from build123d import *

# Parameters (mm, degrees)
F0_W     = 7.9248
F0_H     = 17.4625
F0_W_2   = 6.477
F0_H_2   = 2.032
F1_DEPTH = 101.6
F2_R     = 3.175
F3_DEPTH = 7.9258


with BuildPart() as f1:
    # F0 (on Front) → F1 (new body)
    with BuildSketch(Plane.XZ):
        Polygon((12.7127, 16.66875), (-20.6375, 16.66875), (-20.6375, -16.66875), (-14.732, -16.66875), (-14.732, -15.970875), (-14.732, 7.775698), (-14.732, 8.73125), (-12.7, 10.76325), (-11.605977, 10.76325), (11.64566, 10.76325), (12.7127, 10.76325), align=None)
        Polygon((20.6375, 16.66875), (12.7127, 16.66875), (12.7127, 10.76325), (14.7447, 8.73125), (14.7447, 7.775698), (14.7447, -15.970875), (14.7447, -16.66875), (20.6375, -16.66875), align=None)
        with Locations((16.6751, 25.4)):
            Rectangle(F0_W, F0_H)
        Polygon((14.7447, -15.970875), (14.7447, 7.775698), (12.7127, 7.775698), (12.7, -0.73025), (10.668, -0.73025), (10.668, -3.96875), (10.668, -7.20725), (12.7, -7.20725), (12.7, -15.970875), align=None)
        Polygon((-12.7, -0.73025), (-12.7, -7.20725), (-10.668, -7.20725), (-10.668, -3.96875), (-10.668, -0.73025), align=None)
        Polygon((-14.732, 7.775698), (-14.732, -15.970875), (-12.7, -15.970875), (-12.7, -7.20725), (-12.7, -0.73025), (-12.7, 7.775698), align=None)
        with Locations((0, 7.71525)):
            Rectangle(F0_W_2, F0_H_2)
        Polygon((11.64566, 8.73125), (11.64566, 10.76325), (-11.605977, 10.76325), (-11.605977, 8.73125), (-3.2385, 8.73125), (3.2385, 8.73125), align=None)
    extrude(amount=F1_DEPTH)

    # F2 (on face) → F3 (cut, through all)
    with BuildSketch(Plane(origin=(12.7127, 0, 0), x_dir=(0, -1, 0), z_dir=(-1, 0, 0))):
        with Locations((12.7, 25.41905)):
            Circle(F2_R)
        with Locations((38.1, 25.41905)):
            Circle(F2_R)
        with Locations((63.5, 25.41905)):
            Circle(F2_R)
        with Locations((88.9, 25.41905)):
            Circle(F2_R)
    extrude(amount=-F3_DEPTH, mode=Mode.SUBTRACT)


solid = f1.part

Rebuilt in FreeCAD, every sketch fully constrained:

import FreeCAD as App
import Part
import Sketcher
Q = App.Units.Quantity


def add_polygon(sketch, points):
    """Adds a closed chain of lines whose ends are joined by coincident constraints."""
    first, n = sketch.GeometryCount, len(points)
    for a, b in zip(points, points[1:] + points[:1]):
        sketch.addGeometry(Part.LineSegment(App.Vector(*a, 0), App.Vector(*b, 0)), False)
    for i in range(n):
        sketch.addConstraint(Sketcher.Constraint("Coincident", first + i, 2, first + (i + 1) % n, 1))

doc = App.newDocument("Part")
body = doc.addObject("PartDesign::Body", "Body")

# Sketch on XZ plane
sketch1 = doc.addObject("Sketcher::SketchObject", "Sketch")
body.addObject(sketch1)
sketch1.AttachmentSupport = (doc.XZ_Plane, [""])
sketch1.MapMode = "FlatFace"
add_polygon(sketch1, [(12.7127, 16.66875), (-20.6375, 16.66875), (-20.6375, -16.66875), (-14.732, -16.66875), (-14.732, -15.970875), (-12.7, -15.970875), (-12.7, -7.20725), (-10.668, -7.20725), (-10.668, -0.73025), (-12.7, -0.73025), (-12.7, 7.775698), (-14.732, 7.775698), (-14.732, 8.73125), (-12.7, 10.76325), (-11.605977, 10.76325), (-11.605977, 8.73125), (-3.2385, 8.73125), (-3.2385, 6.69925), (3.2385, 6.69925), (3.2385, 8.73125), (11.64566, 8.73125), (11.64566, 10.76325), (12.7127, 10.76325), (14.7447, 8.73125), (14.7447, 7.775698), (12.7127, 7.775698), (12.7, -0.73025), (10.668, -0.73025), (10.668, -7.20725), (12.7, -7.20725), (12.7, -15.970875), (14.7447, -15.970875), (14.7447, -16.66875), (20.6375, -16.66875), (20.6375, 34.13125), (12.7127, 34.13125)])  # lines 0-35
sketch1.addConstraint([
    Sketcher.Constraint("Horizontal", 0),
    Sketcher.Constraint("Vertical", 1),
    Sketcher.Constraint("Horizontal", 2),
    Sketcher.Constraint("Vertical", 3),
    Sketcher.Constraint("Horizontal", 4),
    Sketcher.Constraint("Vertical", 5),
    Sketcher.Constraint("Horizontal", 6),
    Sketcher.Constraint("Vertical", 7),
    Sketcher.Constraint("Horizontal", 8),
    Sketcher.Constraint("Vertical", 9),
    Sketcher.Constraint("Horizontal", 10),
    Sketcher.Constraint("Vertical", 11),
    Sketcher.Constraint("Horizontal", 13),
    Sketcher.Constraint("Vertical", 14),
    Sketcher.Constraint("Horizontal", 15),
    Sketcher.Constraint("Vertical", 16),
    Sketcher.Constraint("Horizontal", 17),
    Sketcher.Constraint("Vertical", 18),
    Sketcher.Constraint("Horizontal", 19),
    Sketcher.Constraint("Vertical", 20),
    Sketcher.Constraint("Horizontal", 21),
    Sketcher.Constraint("Vertical", 23),
    Sketcher.Constraint("Horizontal", 24),
    Sketcher.Constraint("Horizontal", 26),
    Sketcher.Constraint("Vertical", 27),
    Sketcher.Constraint("Horizontal", 28),
    Sketcher.Constraint("Vertical", 29),
    Sketcher.Constraint("Horizontal", 30),
    Sketcher.Constraint("Vertical", 31),
    Sketcher.Constraint("Horizontal", 32),
    Sketcher.Constraint("Vertical", 33),
    Sketcher.Constraint("Horizontal", 34),
    Sketcher.Constraint("Vertical", 35),
    Sketcher.Constraint("Symmetric", 0, 2, 32, 2, -1, 1),
    Sketcher.Constraint("Symmetric", 15, 2, 18, 2, -2),
    Sketcher.Constraint("Symmetric", 8, 2, 25, 2, -2),
    Sketcher.Constraint("Symmetric", 6, 2, 27, 2, -2),
    Sketcher.Constraint("Symmetric", 4, 2, 29, 2, -2),
    Sketcher.Constraint("Perpendicular", 12, 22),
    Sketcher.Constraint("Horizontal", 11, 2, 14, 2),
    Sketcher.Constraint("Horizontal", 13, 2, 20, 2),
    Sketcher.Constraint("Horizontal", 19, 2, 22, 2),
    Sketcher.Constraint("Horizontal", 10, 2, 23, 2),
    Sketcher.Constraint("Horizontal", 2, 2, 31, 2),
    Sketcher.Constraint("Vertical", 5, 2, 8, 2),
    Sketcher.Constraint("Vertical", 3, 2, 10, 2),
    Sketcher.Constraint("Vertical", 9, 2, 12, 2),
    Sketcher.Constraint("Vertical", 21, 2, 24, 2),
    Sketcher.Constraint("Vertical", 23, 2, 30, 2),
    Sketcher.Constraint("Vertical", 24, 2, 34, 2),
    Sketcher.Constraint("Equal", 4, 6),
    Sketcher.Constraint("Equal", 10, 24),
    Sketcher.Constraint("Equal", 17, 7),
    Sketcher.Constraint("Equal", 14, 16),
    Sketcher.Constraint("DistanceY", 33, 1, 33, 2, Q("2 in")),
    Sketcher.Constraint("DistanceY", 22, 2, 33, 2, Q("1 in")),
    Sketcher.Constraint("DistanceX", 4, 1, 4, 2, Q("0.08 in")),
    Sketcher.Constraint("DistanceX", 4, 2, -1, 1, Q("0.5 in")),
    Sketcher.Constraint("DistanceX", 0, 2, 0, 1, Q("1.313 in")),
    Sketcher.Constraint("DistanceX", 17, 1, 17, 2, Q("0.255 in")),
    Sketcher.Constraint("DistanceX", 32, 1, 32, 2, Q("0.232 in")),
    Sketcher.Constraint("DistanceY", 1, 2, 1, 1, Q("1.3125 in")),
    Sketcher.Constraint("DistanceY", 5, 2, 0, 2, Q("0.94 in")),
    Sketcher.Constraint("DistanceX", 19, 1, 19, 2, 8.40716),
    Sketcher.Constraint("DistanceY", 11, 1, 11, 2, 0.955552),
    Sketcher.Constraint("DistanceX", 13, 1, 13, 2, 1.094023),
    Sketcher.Constraint("DistanceY", 3, 1, 3, 2, 0.697875),
])
pad1 = doc.addObject("PartDesign::Pad", "Pad")
body.addObject(pad1)
pad1.Profile = sketch1
pad1.Length = Q("4 in")

# Sketch on YZ plane
sketch2 = doc.addObject("Sketcher::SketchObject", "Sketch001")
body.addObject(sketch2)
sketch2.AttachmentSupport = (doc.YZ_Plane, [""])
sketch2.MapMode = "FlatFace"
sketch2.AttachmentOffset = App.Placement(App.Vector(0, 0, 0.5005 * 25.4), App.Rotation())
sketch2.addGeometry([
    Part.Circle(App.Vector(-12.7, 25.41905, 0), App.Vector(0, 0, 1), 3.175),
    Part.Circle(App.Vector(-38.1, 25.41905, 0), App.Vector(0, 0, 1), 3.175),
    Part.Circle(App.Vector(-63.5, 25.41905, 0), App.Vector(0, 0, 1), 3.175),
    Part.Circle(App.Vector(-88.9, 25.41905, 0), App.Vector(0, 0, 1), 3.175),
], False)
sketch2.addConstraint([
    Sketcher.Constraint("Equal", 0, 1),
    Sketcher.Constraint("Equal", 1, 2),
    Sketcher.Constraint("Equal", 2, 3),
    Sketcher.Constraint("Horizontal", 0, 3, 1, 3),
    Sketcher.Constraint("Horizontal", 1, 3, 2, 3),
    Sketcher.Constraint("Horizontal", 2, 3, 3, 3),
    Sketcher.Constraint("Diameter", 0, Q("0.25 in")),
    Sketcher.Constraint("DistanceX", 1, 3, 0, 3, Q("1 in")),
    Sketcher.Constraint("DistanceX", 2, 3, 1, 3, Q("1 in")),
    Sketcher.Constraint("DistanceX", 3, 3, 2, 3, Q("1 in")),
    Sketcher.Constraint("DistanceX", 0, 3, -1, 1, Q("0.5 in")),
    Sketcher.Constraint("DistanceY", -1, 1, 0, 3, 25.41905),
])
pocket1 = doc.addObject("PartDesign::Pocket", "Pocket")
body.addObject(pocket1)
pocket1.Profile = sketch2
pocket1.Type = "ThroughAll"
pocket1.Reversed = True

doc.recompute()
